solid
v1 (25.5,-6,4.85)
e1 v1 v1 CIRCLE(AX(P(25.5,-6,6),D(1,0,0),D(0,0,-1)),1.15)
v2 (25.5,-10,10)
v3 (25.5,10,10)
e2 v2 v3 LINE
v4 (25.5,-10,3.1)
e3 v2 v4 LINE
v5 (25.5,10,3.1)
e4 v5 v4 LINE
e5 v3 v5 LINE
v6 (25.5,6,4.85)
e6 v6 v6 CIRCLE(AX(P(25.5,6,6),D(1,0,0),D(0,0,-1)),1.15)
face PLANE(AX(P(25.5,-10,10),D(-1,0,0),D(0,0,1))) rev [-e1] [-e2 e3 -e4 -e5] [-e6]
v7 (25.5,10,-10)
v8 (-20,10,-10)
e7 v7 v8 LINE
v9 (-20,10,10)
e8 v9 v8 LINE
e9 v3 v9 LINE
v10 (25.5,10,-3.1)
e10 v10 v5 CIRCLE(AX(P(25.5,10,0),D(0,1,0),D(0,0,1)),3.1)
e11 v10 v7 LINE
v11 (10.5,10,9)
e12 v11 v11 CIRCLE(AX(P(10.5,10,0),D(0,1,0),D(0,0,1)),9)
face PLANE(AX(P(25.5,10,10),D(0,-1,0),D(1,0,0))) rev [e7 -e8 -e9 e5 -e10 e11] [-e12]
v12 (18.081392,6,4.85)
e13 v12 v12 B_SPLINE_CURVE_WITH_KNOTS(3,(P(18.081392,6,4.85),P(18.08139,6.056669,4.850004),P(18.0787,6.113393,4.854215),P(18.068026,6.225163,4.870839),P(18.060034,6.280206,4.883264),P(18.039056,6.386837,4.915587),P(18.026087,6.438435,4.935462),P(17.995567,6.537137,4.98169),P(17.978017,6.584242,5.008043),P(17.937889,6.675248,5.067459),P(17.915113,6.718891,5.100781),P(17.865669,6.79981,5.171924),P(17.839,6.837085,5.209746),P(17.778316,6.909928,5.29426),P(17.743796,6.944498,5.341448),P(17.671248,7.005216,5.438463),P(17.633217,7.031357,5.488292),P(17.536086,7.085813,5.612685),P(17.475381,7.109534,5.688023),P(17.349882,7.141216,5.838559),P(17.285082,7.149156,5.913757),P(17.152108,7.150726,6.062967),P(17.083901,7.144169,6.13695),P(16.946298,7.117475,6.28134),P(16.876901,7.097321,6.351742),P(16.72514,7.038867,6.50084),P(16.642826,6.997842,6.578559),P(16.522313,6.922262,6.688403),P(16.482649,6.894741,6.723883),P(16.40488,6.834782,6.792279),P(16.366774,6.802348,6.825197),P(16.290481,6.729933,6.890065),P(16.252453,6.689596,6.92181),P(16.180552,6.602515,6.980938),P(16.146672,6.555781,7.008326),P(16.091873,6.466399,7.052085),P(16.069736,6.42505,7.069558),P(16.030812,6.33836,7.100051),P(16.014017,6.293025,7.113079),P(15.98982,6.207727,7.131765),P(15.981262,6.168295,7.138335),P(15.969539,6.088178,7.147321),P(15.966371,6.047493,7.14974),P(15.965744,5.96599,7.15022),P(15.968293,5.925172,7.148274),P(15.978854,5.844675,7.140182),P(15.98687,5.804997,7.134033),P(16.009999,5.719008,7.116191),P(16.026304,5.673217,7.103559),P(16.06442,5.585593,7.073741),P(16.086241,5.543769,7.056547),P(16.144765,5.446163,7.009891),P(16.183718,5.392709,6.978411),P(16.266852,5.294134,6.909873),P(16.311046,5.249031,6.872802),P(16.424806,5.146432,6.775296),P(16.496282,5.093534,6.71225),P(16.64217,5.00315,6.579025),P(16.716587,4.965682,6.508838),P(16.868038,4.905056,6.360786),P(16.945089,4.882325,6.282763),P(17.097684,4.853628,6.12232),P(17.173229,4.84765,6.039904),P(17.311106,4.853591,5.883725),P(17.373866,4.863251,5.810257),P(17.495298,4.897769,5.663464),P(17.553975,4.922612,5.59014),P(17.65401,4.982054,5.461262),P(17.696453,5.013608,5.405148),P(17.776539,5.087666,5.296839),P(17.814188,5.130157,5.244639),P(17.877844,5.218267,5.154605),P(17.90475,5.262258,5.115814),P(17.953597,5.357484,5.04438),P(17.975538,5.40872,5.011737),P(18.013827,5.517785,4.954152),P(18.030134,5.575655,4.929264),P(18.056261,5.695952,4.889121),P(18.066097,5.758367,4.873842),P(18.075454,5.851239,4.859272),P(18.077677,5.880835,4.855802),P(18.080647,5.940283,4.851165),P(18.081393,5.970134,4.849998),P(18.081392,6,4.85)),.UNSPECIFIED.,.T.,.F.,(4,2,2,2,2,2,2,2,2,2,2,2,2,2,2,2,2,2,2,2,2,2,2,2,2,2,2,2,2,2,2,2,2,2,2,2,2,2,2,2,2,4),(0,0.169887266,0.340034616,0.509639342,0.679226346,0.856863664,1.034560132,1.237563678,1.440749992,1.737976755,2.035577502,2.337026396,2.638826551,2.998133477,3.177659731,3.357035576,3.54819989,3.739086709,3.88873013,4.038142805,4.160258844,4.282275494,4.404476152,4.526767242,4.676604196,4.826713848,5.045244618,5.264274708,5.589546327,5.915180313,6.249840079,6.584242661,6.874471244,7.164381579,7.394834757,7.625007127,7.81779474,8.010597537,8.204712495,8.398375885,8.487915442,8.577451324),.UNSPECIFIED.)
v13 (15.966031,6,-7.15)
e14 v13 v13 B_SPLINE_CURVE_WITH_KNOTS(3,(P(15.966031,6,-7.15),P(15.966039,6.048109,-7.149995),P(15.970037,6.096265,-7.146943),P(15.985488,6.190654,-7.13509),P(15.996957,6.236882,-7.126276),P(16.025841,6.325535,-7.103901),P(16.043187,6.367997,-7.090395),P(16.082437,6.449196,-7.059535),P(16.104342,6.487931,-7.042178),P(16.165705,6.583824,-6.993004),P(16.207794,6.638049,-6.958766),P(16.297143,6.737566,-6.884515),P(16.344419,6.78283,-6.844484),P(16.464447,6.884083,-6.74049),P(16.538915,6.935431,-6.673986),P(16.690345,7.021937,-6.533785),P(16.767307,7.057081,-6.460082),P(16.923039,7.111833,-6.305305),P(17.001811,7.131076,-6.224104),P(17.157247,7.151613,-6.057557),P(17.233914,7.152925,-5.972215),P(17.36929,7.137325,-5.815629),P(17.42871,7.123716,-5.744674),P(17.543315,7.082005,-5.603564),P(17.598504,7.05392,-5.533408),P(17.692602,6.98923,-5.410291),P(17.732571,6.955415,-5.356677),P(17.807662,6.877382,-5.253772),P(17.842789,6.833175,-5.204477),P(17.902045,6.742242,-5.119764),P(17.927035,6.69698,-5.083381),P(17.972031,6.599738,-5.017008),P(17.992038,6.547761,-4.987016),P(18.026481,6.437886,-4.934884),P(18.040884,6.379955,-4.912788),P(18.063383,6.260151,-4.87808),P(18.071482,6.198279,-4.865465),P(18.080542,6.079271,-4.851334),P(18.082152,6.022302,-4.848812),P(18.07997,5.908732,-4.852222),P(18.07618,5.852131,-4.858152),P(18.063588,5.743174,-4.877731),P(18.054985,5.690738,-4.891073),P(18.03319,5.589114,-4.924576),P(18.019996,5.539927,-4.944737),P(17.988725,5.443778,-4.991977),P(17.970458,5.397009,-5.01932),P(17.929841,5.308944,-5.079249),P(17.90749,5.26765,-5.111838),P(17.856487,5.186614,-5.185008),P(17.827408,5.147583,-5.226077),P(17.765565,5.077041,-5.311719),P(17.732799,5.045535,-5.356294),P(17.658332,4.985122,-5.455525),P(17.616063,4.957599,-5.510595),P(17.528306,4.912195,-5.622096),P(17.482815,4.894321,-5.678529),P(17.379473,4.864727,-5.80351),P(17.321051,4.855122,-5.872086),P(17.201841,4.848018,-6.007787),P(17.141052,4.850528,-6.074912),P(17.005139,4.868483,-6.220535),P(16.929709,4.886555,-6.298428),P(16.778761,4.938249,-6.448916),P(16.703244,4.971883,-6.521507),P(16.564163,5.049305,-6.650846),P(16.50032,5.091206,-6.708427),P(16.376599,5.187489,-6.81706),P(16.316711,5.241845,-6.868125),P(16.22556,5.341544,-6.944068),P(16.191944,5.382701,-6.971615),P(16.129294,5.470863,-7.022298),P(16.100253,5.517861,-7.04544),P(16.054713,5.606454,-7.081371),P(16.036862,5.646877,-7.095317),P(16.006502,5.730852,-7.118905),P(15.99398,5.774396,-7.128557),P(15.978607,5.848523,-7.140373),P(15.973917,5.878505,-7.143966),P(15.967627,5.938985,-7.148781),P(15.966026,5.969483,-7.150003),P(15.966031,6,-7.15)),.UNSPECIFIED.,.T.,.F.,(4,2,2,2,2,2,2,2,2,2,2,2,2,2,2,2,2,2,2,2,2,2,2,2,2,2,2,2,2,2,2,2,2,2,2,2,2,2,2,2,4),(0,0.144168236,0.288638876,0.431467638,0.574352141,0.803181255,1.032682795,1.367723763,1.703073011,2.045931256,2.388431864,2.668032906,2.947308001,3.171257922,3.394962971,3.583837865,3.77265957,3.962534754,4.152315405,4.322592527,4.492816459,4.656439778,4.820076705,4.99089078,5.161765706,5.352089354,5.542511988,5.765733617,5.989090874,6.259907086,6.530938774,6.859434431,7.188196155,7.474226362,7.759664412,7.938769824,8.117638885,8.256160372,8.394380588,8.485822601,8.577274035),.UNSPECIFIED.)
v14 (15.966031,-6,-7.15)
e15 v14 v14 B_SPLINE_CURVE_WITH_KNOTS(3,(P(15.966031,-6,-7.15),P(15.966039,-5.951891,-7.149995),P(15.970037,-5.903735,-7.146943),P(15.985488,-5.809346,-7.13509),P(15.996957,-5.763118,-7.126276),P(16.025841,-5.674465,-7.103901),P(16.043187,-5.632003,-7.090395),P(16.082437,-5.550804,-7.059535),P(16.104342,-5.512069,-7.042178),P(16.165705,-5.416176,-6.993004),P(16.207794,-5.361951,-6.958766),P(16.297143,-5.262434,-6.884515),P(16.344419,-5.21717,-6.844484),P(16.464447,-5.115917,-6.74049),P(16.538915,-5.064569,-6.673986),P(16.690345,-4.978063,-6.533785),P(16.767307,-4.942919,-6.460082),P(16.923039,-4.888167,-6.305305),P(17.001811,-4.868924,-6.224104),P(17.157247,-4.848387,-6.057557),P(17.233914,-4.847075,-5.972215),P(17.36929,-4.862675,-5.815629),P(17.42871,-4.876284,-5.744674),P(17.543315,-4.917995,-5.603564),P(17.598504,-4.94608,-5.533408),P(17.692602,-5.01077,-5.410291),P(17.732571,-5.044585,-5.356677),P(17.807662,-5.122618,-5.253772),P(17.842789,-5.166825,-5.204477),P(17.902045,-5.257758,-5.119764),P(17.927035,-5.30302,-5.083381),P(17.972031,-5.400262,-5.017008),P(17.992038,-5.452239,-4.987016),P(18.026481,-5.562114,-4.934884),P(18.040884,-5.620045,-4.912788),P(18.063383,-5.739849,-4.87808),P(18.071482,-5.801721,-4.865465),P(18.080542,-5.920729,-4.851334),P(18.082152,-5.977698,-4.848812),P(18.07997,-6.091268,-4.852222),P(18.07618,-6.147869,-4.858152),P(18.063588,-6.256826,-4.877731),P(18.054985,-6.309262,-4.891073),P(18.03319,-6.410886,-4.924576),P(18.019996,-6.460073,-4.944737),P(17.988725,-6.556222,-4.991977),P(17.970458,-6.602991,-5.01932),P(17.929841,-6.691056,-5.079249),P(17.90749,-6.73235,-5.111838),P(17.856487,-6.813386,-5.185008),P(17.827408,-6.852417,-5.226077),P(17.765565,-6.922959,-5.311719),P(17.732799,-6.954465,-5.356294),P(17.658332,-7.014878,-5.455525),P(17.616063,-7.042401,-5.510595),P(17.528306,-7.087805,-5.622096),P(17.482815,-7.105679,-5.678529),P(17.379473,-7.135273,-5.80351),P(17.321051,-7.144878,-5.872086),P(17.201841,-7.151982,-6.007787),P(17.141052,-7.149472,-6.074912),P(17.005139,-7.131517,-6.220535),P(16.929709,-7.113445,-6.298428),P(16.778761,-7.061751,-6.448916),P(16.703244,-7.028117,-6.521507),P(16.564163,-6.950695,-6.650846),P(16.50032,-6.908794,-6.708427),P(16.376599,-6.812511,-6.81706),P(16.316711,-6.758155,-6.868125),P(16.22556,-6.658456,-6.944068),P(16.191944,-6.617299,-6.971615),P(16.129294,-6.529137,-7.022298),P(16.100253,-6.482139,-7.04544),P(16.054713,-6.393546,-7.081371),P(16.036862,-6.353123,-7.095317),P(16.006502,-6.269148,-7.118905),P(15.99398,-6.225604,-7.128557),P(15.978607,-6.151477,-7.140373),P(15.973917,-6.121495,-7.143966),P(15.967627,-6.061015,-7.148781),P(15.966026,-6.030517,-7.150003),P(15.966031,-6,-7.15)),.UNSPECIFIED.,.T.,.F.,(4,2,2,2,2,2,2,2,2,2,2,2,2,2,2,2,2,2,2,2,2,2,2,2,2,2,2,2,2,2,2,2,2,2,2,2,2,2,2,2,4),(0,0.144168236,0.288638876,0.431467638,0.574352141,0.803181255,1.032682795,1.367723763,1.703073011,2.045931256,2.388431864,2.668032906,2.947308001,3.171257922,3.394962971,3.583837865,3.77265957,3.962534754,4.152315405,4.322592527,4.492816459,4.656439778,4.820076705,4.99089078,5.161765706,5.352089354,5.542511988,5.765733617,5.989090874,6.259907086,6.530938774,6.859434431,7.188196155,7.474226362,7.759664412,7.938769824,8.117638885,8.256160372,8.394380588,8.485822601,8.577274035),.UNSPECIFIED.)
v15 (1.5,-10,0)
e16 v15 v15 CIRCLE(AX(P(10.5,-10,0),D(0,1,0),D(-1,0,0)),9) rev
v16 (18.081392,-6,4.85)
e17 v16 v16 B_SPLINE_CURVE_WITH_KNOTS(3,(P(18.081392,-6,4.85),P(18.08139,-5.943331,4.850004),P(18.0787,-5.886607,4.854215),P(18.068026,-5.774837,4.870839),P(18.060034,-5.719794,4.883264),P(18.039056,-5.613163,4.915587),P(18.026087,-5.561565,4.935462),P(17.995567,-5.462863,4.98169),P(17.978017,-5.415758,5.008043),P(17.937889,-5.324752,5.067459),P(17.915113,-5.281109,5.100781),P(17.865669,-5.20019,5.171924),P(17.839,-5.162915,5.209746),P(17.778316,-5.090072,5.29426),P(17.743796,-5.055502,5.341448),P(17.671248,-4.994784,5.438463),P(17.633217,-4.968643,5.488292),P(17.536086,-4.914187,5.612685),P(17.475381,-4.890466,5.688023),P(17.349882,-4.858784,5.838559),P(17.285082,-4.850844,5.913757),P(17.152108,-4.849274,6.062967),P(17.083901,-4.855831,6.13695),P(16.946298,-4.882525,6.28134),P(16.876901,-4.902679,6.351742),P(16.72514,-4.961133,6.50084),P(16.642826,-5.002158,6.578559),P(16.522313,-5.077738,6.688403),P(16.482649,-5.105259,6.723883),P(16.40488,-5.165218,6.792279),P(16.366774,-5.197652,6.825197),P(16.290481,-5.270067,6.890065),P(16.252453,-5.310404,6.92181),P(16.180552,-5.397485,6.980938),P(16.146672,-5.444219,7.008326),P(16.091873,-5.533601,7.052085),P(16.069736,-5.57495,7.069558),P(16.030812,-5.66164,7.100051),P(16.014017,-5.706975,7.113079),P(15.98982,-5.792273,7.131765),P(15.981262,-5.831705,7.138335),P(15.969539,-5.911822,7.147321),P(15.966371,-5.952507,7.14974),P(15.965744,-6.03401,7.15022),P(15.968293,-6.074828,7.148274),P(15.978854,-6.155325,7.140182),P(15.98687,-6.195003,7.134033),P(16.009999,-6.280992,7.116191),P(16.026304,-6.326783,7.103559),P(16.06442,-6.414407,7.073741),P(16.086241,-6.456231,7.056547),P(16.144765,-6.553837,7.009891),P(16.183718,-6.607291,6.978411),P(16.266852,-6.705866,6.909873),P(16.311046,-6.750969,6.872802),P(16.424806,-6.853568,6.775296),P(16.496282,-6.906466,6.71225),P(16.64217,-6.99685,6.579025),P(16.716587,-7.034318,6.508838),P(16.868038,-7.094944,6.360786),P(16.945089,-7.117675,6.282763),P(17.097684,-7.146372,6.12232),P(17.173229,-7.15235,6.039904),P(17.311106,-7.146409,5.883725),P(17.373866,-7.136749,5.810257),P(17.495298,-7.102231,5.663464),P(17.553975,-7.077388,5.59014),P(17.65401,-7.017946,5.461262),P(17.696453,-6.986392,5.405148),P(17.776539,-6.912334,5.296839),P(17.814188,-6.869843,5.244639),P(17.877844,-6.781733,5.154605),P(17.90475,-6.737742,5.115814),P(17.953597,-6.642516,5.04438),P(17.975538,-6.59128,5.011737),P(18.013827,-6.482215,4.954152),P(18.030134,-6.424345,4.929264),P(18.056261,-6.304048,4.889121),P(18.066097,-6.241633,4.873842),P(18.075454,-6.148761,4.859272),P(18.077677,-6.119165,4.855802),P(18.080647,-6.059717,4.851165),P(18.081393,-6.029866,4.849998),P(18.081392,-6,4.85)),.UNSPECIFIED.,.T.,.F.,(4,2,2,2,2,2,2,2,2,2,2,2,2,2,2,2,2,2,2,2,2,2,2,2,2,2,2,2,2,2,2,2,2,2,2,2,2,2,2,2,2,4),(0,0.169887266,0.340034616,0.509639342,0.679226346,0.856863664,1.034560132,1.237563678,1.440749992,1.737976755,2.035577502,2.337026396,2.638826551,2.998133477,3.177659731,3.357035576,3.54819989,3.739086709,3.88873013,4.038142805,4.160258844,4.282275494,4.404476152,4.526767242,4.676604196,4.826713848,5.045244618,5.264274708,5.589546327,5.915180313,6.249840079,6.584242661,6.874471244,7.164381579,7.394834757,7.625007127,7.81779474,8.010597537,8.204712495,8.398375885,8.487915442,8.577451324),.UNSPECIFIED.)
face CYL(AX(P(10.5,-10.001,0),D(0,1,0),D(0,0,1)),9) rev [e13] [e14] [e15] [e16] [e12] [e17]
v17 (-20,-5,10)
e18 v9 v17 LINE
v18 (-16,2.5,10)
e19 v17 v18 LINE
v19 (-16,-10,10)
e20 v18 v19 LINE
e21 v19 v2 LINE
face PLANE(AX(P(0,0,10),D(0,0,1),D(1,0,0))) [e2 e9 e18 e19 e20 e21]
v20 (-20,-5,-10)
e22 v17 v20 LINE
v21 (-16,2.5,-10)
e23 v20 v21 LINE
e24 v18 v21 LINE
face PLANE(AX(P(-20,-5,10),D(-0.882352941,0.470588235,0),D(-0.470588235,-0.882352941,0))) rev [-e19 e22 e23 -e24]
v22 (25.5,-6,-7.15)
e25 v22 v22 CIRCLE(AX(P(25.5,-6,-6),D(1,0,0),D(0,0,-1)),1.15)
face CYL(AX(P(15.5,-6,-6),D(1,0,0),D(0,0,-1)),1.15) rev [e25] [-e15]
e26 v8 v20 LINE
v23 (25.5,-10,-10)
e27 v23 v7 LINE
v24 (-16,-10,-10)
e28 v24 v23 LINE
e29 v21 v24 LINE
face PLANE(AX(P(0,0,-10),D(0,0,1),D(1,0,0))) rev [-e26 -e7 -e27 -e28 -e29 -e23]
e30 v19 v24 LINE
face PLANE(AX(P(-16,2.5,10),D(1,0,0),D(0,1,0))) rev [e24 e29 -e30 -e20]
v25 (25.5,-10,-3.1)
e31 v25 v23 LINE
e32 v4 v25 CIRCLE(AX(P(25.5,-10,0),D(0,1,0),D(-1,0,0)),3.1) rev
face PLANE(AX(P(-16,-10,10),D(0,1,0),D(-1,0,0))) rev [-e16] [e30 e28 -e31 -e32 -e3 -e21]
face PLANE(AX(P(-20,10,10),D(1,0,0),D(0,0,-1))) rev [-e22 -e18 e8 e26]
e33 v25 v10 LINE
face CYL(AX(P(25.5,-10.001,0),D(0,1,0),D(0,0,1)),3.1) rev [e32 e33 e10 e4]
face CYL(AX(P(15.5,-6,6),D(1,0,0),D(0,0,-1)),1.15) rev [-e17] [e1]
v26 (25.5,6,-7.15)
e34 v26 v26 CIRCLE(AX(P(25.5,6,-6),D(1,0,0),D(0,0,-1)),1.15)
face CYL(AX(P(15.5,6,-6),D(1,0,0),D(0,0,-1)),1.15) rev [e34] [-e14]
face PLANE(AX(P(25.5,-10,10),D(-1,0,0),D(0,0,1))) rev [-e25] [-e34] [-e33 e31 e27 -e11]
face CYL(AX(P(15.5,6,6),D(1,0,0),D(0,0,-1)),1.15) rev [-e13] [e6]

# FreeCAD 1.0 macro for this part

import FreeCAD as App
import Part
import Sketcher

V = App.Vector
Q = App.Units.Quantity


def add_polygon(sketch, points):
    """Adds a closed chain of lines whose ends are joined by coincident constraints."""
    first, n = sketch.GeometryCount, len(points)
    for a, b in zip(points, points[1:] + points[:1]):
        sketch.addGeometry(Part.LineSegment(App.Vector(*a, 0), App.Vector(*b, 0)), False)
    for i in range(n):
        sketch.addConstraint(Sketcher.Constraint("Coincident", first + i, 2, first + (i + 1) % n, 1))

doc = App.newDocument("Part")
params = doc.addObject("Spreadsheet::Sheet", "Params")
for row, (alias, value) in enumerate([
    ("sketch1_height", "20 mm"),
    ("sketch1_height2", "15 mm"),
    ("sketch1_width", "41.5 mm"),
    ("sketch1_width2", "45.5 mm"),
    ("sketch1_height3", "12.5 mm"),
    ("pad1_length", "20 mm"),
    ("sketch2_diameter", "18 mm"),
    ("sketch3_diameter", "6.2 mm"),
    ("sketch4_diameter", "2.3 mm"),
    ("pocket3_length", "10 mm"),
], start=1):
    params.set(f"A{row}", alias)
    params.set(f"B{row}", "=" + value)
    params.setAlias(f"B{row}", alias)

body = doc.addObject("PartDesign::Body", "Body")

sketch1 = body.newObject("Sketcher::SketchObject", "Sketch")
sketch1.AttachmentSupport = (doc.getObject("XY_Plane"), [""])
sketch1.MapMode = "FlatFace"
add_polygon(sketch1, [(-16, -10), (26, -10), (26, 10), (-20, 10), (-20, -5), (-16, 2)])
sketch1.addConstraint([
    Sketcher.Constraint("Horizontal", 0),
    Sketcher.Constraint("Vertical", 1),
    Sketcher.Constraint("Horizontal", 2),
    Sketcher.Constraint("Vertical", 3),
    Sketcher.Constraint("Vertical", 5),
    Sketcher.Constraint("DistanceY", 1, 1, 1, 2, Q("20 mm")),
    Sketcher.Constraint("DistanceY", 3, 2, 3, 1, Q("15 mm")),
    Sketcher.Constraint("DistanceX", 0, 1, 0, 2, Q("41.5 mm")),
    Sketcher.Constraint("DistanceX", 2, 2, 2, 1, Q("45.5 mm")),
    Sketcher.Constraint("DistanceY", 5, 2, 5, 1, Q("12.5 mm")),
    Sketcher.Constraint("DistanceY", 0, 2, -1, 1, Q("10 mm")),
    Sketcher.Constraint("DistanceX", 2, 2, -1, 1, Q("20 mm")),
])
sketch1.setExpression("Constraints[11]", "Params.sketch1_height")
sketch1.setExpression("Constraints[12]", "Params.sketch1_height2")
sketch1.setExpression("Constraints[13]", "Params.sketch1_width")
sketch1.setExpression("Constraints[14]", "Params.sketch1_width2")
sketch1.setExpression("Constraints[15]", "Params.sketch1_height3")
pad1 = body.newObject("PartDesign::Pad", "Pad")
pad1.Profile = sketch1
pad1.setExpression("Length", "Params.pad1_length")
pad1.Midplane = True

sketch2 = body.newObject("Sketcher::SketchObject", "Sketch001")
sketch2.AttachmentSupport = (doc.getObject("XZ_Plane"), [""])
sketch2.MapMode = "FlatFace"
sketch2.AttachmentOffset = App.Placement(V(0, 0, -10), App.Rotation())
sketch2.addGeometry(Part.Circle(V(10, 0, 0), V(0, 0, 1), 9), False)
sketch2.addConstraint([
    Sketcher.Constraint("PointOnObject", 0, 3, -1),
    Sketcher.Constraint("Diameter", 0, Q("18 mm")),
    Sketcher.Constraint("DistanceX", -1, 1, 0, 3, Q("10.5 mm")),
])
sketch2.setExpression("Constraints[1]", "Params.sketch2_diameter")
pocket1 = body.newObject("PartDesign::Pocket", "Pocket")
pocket1.Profile = sketch2
pocket1.Type = "UpToFirst"
pocket1.Reversed = True

sketch3 = body.newObject("Sketcher::SketchObject", "Sketch002")
sketch3.AttachmentSupport = (doc.getObject("XZ_Plane"), [""])
sketch3.MapMode = "FlatFace"
sketch3.AttachmentOffset = App.Placement(V(0, 0, -10), App.Rotation())
sketch3.addGeometry(Part.Circle(V(25.5, 0, 0), V(0, 0, 1), 3.1), False)
sketch3.addConstraint([
    Sketcher.Constraint("PointOnObject", 0, 3, -1),
    Sketcher.Constraint("Diameter", 0, Q("6.2 mm")),
    Sketcher.Constraint("DistanceX", -1, 1, 0, 3, Q("25.5 mm")),
])
sketch3.setExpression("Constraints[1]", "Params.sketch3_diameter")
pocket2 = body.newObject("PartDesign::Pocket", "Pocket001")
pocket2.Profile = sketch3
pocket2.Type = "UpToFirst"
pocket2.Reversed = True

sketch4 = body.newObject("Sketcher::SketchObject", "Sketch003")
sketch4.AttachmentSupport = (doc.getObject("YZ_Plane"), [""])
sketch4.MapMode = "FlatFace"
sketch4.AttachmentOffset = App.Placement(V(0, 0, 25.5), App.Rotation())
sketch4.addGeometry([
    Part.Circle(V(6, 6, 0), V(0, 0, 1), 1.1),
    Part.Circle(V(-6, 6, 0), V(0, 0, 1), 1.1),
    Part.Circle(V(-6, -6, 0), V(0, 0, 1), 1.1),
    Part.Circle(V(6, -6, 0), V(0, 0, 1), 1.1),
], False)
sketch4.addConstraint([
    Sketcher.Constraint("Equal", 0, 1),
    Sketcher.Constraint("Equal", 1, 2),
    Sketcher.Constraint("Equal", 2, 3),
    Sketcher.Constraint("Symmetric", 0, 3, 2, 3, -1, 1),
    Sketcher.Constraint("Symmetric", 1, 3, 3, 3, -1, 1),
    Sketcher.Constraint("Symmetric", 0, 3, 1, 3, -2),
    Sketcher.Constraint("Diameter", 0, Q("2.3 mm")),
    Sketcher.Constraint("DistanceX", -1, 1, 0, 3, Q("6 mm")),
    Sketcher.Constraint("DistanceY", -1, 1, 0, 3, Q("6 mm")),
])
sketch4.setExpression("Constraints[6]", "Params.sketch4_diameter")
pocket3 = body.newObject("PartDesign::Pocket", "Pocket002")
pocket3.Profile = sketch4
pocket3.setExpression("Length", "Params.pocket3_length")

doc.recompute()
